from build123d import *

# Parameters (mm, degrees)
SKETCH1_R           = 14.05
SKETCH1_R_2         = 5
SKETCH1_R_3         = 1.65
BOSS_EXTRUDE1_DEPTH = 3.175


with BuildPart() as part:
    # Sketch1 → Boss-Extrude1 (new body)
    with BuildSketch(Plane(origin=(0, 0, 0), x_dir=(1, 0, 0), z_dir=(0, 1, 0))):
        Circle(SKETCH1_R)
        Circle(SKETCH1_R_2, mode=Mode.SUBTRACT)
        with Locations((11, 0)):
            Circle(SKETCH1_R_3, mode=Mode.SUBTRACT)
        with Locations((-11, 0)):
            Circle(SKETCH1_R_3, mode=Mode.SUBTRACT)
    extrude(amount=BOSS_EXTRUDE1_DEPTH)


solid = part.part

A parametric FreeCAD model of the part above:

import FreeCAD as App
import Part
import Sketcher
from FreeCAD import Vector

doc = App.newDocument("Part")
body = doc.addObject("PartDesign::Body", "Body")

# Sketch on XZ plane
sketch1 = doc.addObject("Sketcher::SketchObject", "Sketch")
body.addObject(sketch1)
sketch1.AttachmentSupport = (doc.XZ_Plane, [""])
sketch1.MapMode = "FlatFace"
sketch1.addGeometry([
    Part.Circle(Vector(0, 0, 0), Vector(0, 0, 1), 14.1),
    Part.Circle(Vector(-11, 0, 0), Vector(0, 0, 1), 1.6),
    Part.Circle(Vector(0, 0, 0), Vector(0, 0, 1), 5),
    Part.Circle(Vector(11, 0, 0), Vector(0, 0, 1), 1.6),
], False)
sketch1.addConstraint([
    Sketcher.Constraint("Coincident", 0, 3, -1, 1),
    Sketcher.Constraint("Coincident", 2, 3, -1, 1),
    Sketcher.Constraint("Equal", 1, 3),
    Sketcher.Constraint("Symmetric", 1, 3, 3, 3, -1, 1),
    Sketcher.Constraint("PointOnObject", 1, 3, -1),
    Sketcher.Constraint("Diameter", 2, 10.0),
    Sketcher.Constraint("Diameter", 0, 28.1),
    Sketcher.Constraint("Diameter", 1, 3.3),
    Sketcher.Constraint("DistanceX", 1, 3, -1, 1, 11.0),
])
pad1 = doc.addObject("PartDesign::Pad", "Pad")
body.addObject(pad1)
pad1.Profile = sketch1
pad1.Length = 3.175
pad1.Reversed = True

doc.recompute()
